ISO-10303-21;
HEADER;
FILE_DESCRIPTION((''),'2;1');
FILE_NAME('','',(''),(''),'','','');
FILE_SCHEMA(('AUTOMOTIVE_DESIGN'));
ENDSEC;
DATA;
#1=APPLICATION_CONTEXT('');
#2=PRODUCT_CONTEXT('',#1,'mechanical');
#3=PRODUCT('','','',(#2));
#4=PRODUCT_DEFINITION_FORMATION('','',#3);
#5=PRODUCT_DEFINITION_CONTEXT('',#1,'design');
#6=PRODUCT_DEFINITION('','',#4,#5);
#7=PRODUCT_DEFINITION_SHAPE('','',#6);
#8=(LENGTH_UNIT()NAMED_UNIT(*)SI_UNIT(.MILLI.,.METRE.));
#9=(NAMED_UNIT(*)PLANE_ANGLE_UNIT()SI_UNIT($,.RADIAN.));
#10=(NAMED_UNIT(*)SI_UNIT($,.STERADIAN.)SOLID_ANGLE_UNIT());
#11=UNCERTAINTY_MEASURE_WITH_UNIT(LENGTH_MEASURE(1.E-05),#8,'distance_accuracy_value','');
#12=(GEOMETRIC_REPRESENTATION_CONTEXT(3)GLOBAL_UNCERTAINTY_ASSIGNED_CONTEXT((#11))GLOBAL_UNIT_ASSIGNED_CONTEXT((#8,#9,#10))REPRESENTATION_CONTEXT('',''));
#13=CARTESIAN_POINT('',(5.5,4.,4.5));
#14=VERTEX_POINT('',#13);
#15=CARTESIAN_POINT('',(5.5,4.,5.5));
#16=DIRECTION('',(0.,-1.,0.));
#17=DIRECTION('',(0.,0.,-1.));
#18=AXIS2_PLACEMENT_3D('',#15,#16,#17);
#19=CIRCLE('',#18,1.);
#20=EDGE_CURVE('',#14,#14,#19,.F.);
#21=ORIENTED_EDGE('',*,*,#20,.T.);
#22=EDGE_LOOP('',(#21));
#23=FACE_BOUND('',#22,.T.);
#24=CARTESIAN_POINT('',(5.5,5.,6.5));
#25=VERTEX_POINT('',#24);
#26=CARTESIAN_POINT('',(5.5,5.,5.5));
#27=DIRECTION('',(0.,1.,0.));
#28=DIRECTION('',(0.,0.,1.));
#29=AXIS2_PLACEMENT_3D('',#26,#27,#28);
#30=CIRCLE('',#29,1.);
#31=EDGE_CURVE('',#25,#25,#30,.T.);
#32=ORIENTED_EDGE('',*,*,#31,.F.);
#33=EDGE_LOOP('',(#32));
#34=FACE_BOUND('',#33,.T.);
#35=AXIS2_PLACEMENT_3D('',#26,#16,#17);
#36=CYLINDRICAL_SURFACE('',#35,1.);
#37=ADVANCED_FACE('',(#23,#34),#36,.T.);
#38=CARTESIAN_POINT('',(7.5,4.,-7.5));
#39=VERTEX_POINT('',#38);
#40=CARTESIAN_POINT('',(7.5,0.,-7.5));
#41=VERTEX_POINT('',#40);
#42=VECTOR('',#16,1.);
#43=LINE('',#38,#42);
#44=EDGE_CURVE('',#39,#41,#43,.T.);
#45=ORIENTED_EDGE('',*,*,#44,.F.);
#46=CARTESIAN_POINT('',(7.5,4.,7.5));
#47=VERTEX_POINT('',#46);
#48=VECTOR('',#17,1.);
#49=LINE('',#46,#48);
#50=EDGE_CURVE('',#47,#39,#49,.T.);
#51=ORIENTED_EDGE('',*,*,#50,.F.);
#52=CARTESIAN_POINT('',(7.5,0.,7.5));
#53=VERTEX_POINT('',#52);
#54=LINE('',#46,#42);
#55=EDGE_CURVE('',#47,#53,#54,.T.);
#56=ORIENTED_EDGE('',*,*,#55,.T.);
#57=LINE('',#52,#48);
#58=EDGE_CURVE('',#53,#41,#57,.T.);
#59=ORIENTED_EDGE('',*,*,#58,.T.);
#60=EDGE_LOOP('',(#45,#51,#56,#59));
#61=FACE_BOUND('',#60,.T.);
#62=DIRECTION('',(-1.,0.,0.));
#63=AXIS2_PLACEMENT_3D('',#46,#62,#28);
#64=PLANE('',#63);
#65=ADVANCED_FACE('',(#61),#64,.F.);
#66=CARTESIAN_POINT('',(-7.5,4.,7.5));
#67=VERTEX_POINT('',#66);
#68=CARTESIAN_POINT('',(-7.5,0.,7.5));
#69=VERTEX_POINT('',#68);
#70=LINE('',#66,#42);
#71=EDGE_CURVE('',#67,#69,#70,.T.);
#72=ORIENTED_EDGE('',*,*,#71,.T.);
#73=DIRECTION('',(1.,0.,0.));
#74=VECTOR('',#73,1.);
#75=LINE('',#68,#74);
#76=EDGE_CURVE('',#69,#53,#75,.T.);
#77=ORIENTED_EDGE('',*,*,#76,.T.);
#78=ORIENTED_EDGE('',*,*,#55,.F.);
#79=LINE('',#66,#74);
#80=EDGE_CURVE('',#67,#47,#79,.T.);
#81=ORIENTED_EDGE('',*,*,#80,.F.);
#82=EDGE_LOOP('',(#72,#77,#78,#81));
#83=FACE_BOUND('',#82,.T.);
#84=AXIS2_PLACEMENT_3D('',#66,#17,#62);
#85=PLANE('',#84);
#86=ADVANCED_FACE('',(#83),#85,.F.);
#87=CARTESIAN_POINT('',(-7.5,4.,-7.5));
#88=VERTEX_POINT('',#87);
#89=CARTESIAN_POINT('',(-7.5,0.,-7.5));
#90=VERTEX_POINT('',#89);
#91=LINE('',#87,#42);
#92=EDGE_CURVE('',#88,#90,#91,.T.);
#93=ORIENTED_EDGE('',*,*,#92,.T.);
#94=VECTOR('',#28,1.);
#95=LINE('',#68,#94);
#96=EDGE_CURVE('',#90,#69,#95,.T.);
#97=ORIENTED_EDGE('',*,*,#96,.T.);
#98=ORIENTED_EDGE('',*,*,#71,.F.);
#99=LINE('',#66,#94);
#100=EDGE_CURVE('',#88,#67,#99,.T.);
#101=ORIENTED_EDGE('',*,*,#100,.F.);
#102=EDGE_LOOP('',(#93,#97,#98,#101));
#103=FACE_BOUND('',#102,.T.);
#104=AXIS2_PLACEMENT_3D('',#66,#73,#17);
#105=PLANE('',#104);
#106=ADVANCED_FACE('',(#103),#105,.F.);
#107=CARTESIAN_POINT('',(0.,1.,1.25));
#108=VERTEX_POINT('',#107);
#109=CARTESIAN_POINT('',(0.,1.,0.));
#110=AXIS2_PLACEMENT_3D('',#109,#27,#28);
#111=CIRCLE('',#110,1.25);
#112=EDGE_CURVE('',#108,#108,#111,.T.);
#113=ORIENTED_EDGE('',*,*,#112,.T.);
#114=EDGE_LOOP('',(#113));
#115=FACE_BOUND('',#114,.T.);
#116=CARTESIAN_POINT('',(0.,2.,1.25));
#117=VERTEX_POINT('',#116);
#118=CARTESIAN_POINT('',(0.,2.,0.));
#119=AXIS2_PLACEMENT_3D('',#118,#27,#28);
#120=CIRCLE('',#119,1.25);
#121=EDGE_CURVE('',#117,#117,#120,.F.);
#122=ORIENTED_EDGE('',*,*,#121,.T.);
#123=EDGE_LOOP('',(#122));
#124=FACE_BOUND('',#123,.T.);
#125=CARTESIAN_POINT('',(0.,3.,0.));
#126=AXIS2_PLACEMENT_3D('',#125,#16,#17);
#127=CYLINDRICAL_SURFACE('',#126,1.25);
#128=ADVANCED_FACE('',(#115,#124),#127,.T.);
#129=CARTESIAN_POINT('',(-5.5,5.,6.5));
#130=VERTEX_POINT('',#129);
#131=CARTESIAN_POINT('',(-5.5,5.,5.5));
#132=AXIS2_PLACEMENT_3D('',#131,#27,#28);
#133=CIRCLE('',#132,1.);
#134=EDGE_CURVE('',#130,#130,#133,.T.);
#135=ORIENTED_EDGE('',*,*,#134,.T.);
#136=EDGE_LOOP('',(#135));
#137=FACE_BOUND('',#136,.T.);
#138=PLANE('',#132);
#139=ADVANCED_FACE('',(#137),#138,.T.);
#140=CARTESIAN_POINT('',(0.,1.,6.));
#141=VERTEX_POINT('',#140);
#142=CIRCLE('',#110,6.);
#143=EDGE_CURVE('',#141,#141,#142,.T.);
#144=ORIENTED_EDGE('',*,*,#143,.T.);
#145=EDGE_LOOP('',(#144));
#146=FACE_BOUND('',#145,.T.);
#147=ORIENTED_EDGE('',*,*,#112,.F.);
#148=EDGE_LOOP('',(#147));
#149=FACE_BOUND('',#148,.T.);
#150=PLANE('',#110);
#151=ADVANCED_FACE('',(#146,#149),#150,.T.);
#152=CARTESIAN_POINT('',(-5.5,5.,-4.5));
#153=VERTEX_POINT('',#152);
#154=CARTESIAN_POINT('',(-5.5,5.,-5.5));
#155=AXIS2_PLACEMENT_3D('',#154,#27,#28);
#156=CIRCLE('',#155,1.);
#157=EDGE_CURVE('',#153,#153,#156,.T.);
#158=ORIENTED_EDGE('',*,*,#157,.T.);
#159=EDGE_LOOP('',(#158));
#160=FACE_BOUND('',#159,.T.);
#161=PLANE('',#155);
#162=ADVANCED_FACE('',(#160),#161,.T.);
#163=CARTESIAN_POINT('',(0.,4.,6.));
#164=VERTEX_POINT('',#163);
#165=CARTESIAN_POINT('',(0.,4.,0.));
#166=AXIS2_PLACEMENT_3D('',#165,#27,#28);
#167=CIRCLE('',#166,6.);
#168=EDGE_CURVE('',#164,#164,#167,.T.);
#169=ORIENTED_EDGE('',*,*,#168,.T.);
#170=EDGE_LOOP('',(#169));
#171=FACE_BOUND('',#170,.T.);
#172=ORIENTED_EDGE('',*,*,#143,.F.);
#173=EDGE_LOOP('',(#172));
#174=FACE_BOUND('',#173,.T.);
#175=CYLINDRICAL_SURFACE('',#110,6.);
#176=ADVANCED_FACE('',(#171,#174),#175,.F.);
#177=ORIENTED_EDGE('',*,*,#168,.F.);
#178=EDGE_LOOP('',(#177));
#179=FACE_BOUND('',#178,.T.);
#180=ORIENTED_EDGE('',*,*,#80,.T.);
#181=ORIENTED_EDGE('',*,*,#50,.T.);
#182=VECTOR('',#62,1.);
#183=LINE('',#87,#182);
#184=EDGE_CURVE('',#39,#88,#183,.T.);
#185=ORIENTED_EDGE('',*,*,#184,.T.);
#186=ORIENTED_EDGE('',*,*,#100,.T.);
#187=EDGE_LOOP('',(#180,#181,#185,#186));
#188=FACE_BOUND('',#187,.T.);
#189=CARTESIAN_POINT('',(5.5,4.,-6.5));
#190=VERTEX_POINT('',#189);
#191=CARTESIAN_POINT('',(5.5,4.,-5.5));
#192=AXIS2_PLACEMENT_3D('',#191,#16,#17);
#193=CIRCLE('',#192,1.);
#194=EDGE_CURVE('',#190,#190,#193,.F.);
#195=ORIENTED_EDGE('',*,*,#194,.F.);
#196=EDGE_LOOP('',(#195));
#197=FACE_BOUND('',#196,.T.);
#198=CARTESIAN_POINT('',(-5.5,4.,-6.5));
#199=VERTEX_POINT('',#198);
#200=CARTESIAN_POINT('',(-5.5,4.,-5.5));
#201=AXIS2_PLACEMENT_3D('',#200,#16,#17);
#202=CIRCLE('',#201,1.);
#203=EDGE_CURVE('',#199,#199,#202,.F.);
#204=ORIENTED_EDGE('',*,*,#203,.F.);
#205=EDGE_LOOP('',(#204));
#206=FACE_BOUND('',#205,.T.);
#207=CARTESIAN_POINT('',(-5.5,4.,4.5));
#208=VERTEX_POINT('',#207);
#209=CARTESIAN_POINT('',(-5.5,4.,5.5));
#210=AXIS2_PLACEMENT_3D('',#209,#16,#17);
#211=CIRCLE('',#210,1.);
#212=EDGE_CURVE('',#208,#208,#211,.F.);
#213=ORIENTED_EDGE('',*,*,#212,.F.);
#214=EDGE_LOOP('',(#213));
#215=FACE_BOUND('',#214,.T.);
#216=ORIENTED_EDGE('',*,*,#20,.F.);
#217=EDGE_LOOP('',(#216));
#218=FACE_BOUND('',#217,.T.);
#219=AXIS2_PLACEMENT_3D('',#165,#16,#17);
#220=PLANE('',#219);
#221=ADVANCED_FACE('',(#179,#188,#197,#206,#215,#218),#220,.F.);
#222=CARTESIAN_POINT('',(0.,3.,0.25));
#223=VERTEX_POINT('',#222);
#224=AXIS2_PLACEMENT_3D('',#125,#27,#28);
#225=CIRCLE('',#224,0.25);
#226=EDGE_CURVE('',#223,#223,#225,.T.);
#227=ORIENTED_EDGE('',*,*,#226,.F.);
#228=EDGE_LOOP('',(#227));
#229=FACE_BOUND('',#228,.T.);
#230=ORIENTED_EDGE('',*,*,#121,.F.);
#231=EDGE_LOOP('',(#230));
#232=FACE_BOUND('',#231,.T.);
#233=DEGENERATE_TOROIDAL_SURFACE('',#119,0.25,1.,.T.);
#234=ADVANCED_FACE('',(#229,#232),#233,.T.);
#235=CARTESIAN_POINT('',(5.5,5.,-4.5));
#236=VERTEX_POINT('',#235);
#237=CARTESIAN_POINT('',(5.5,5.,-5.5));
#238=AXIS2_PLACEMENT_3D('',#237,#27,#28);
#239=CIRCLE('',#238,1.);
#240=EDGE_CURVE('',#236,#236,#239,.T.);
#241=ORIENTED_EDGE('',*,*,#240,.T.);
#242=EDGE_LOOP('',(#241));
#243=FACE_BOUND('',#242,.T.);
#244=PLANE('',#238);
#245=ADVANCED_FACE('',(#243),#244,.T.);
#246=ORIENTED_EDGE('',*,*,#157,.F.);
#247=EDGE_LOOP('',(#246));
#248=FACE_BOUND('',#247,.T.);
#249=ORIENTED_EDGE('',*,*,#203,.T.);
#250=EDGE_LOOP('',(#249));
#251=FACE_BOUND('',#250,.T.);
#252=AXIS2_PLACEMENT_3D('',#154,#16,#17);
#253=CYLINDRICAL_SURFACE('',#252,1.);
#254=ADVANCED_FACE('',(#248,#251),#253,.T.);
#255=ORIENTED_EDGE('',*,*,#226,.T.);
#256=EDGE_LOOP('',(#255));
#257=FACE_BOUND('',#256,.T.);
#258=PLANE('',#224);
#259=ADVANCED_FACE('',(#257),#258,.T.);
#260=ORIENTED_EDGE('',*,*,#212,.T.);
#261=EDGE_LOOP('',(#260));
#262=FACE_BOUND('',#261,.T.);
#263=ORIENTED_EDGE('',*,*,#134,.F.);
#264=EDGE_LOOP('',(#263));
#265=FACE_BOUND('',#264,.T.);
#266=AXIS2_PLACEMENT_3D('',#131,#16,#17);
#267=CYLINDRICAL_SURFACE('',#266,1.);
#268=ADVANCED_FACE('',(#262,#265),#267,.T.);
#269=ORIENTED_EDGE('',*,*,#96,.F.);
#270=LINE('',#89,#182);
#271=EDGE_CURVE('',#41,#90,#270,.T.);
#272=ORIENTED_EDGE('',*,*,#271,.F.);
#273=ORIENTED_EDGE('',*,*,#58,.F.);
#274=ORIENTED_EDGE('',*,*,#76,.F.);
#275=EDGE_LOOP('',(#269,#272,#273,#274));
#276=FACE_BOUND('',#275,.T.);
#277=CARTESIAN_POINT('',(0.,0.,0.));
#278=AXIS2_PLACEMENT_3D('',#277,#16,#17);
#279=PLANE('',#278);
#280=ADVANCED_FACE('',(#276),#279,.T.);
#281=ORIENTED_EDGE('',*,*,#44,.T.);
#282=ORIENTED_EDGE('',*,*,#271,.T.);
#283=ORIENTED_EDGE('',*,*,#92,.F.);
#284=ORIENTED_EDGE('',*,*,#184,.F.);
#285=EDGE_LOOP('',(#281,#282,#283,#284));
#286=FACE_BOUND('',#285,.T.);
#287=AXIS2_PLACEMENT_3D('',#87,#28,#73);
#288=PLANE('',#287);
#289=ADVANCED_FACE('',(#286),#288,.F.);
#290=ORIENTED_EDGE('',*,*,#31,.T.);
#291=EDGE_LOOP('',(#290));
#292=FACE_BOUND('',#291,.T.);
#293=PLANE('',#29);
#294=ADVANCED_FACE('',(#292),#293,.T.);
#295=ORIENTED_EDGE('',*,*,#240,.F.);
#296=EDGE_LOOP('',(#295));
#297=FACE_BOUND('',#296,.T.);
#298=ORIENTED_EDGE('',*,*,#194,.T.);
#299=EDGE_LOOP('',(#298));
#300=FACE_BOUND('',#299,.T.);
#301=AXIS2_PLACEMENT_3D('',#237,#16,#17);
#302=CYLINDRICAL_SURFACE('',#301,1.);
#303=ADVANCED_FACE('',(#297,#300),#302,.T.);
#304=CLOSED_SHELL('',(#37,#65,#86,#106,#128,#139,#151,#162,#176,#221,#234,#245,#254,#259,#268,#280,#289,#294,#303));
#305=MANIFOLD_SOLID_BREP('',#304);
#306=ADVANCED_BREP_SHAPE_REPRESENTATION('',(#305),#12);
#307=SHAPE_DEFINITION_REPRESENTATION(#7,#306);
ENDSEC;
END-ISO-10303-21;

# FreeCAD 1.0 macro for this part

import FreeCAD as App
import Part
import Sketcher
Q = App.Units.Quantity


def edges_at(feature, points):
    """Names of the edges that pass closest to the given points."""
    edges = feature.Shape.Edges
    near = lambda p: min(range(len(edges)), key=lambda i: edges[i].distToShape(Part.Vertex(*p))[0])
    return sorted({f"Edge{near(p) + 1}" for p in points})

doc = App.newDocument("Part")
params = doc.addObject("Spreadsheet::Sheet", "Params")
for row, (alias, value) in enumerate([
    ("sketch1_width", "15 mm"),
    ("pad1_length", "4 mm"),
    ("sketch2_diameter", "12 mm"),
    ("pocket1_length", "3 mm"),
    ("sketch3_diameter", "2.5 mm"),
    ("pad2_length", "2 mm"),
    ("fillet_radius", "1 mm"),
    ("sketch4_diameter", "2 mm"),
    ("pad3_length", "1 mm"),
], start=1):
    params.set(f"A{row}", alias)
    params.set(f"B{row}", "=" + value)
    params.setAlias(f"B{row}", alias)

body = doc.addObject("PartDesign::Body", "Body")

sketch1 = body.newObject("Sketcher::SketchObject", "Sketch")
sketch1.AttachmentSupport = (doc.getObject("XZ_Plane"), [""])
sketch1.MapMode = "FlatFace"
sketch1.addGeometry(Part.LineSegment(App.Vector(-8, -8, 0), App.Vector(-8, 8, 0)), False)
sketch1.addGeometry(Part.LineSegment(App.Vector(-8, 8, 0), App.Vector(8, 8, 0)), False)
sketch1.addGeometry(Part.LineSegment(App.Vector(8, 8, 0), App.Vector(8, -8, 0)), False)
sketch1.addGeometry(Part.LineSegment(App.Vector(8, -8, 0), App.Vector(-8, -8, 0)), False)
sketch1.addConstraint(Sketcher.Constraint("Coincident", 0, 2, 1, 1))
sketch1.addConstraint(Sketcher.Constraint("Coincident", 1, 2, 2, 1))
sketch1.addConstraint(Sketcher.Constraint("Coincident", 2, 2, 3, 1))
sketch1.addConstraint(Sketcher.Constraint("Coincident", 3, 2, 0, 1))
sketch1.addConstraint(Sketcher.Constraint("Vertical", 0))
sketch1.addConstraint(Sketcher.Constraint("Horizontal", 1))
sketch1.addConstraint(Sketcher.Constraint("Vertical", 2))
sketch1.addConstraint(Sketcher.Constraint("Horizontal", 3))
sketch1.addConstraint(Sketcher.Constraint("Symmetric", 0, 2, 2, 2, -1, 1))
sketch1.addConstraint(Sketcher.Constraint("Equal", 3, 0))
sketch1.addConstraint(Sketcher.Constraint("DistanceX", 1, 1, 1, 2, Q("15 mm")))
sketch1.setExpression("Constraints[10]", "Params.sketch1_width")
pad1 = body.newObject("PartDesign::Pad", "Pad")
pad1.Profile = sketch1
pad1.setExpression("Length", "Params.pad1_length")
pad1.Reversed = True

sketch2 = body.newObject("Sketcher::SketchObject", "Sketch001")
sketch2.AttachmentSupport = (doc.getObject("XZ_Plane"), [""])
sketch2.MapMode = "FlatFace"
sketch2.AttachmentOffset = App.Placement(App.Vector(0, 0, -4), App.Rotation())
sketch2.addGeometry(Part.Circle(App.Vector(0, 0, 0), App.Vector(0, 0, 1), 6), False)
sketch2.addConstraint(Sketcher.Constraint("Coincident", 0, 3, -1, 1))
sketch2.addConstraint(Sketcher.Constraint("Diameter", 0, Q("12 mm")))
sketch2.setExpression("Constraints[1]", "Params.sketch2_diameter")
pocket1 = body.newObject("PartDesign::Pocket", "Pocket")
pocket1.Profile = sketch2
pocket1.setExpression("Length", "Params.pocket1_length")
pocket1.Reversed = True

sketch3 = body.newObject("Sketcher::SketchObject", "Sketch002")
sketch3.AttachmentSupport = (doc.getObject("XZ_Plane"), [""])
sketch3.MapMode = "FlatFace"
sketch3.AttachmentOffset = App.Placement(App.Vector(0, 0, -1), App.Rotation())
sketch3.addGeometry(Part.Circle(App.Vector(0, 0, 0), App.Vector(0, 0, 1), 1.2), False)
sketch3.addConstraint(Sketcher.Constraint("Coincident", 0, 3, -1, 1))
sketch3.addConstraint(Sketcher.Constraint("Diameter", 0, Q("2.5 mm")))
sketch3.setExpression("Constraints[1]", "Params.sketch3_diameter")
pad2 = body.newObject("PartDesign::Pad", "Pad001")
pad2.Profile = sketch3
pad2.setExpression("Length", "Params.pad2_length")
pad2.Reversed = True
doc.recompute()

fillet = body.newObject("PartDesign::Fillet", "Fillet")
fillet.Base = (pad2, edges_at(pad2, [(-1.25, 3, 0)]))
fillet.setExpression("Radius", "Params.fillet_radius")

sketch4 = body.newObject("Sketcher::SketchObject", "Sketch003")
sketch4.AttachmentSupport = (doc.getObject("XZ_Plane"), [""])
sketch4.MapMode = "FlatFace"
sketch4.AttachmentOffset = App.Placement(App.Vector(0, 0, -4), App.Rotation())
sketch4.addGeometry(Part.Circle(App.Vector(-5.5, -5.5, 0), App.Vector(0, 0, 1), 1), False)
sketch4.addGeometry(Part.Circle(App.Vector(5.5, -5.5, 0), App.Vector(0, 0, 1), 1), False)
sketch4.addGeometry(Part.Circle(App.Vector(-5.5, 5.5, 0), App.Vector(0, 0, 1), 1), False)
sketch4.addGeometry(Part.Circle(App.Vector(5.5, 5.5, 0), App.Vector(0, 0, 1), 1), False)
sketch4.addConstraint(Sketcher.Constraint("Equal", 0, 1))
sketch4.addConstraint(Sketcher.Constraint("Equal", 1, 2))
sketch4.addConstraint(Sketcher.Constraint("Equal", 2, 3))
sketch4.addConstraint(Sketcher.Constraint("Symmetric", 1, 3, 2, 3, -1, 1))
sketch4.addConstraint(Sketcher.Constraint("Symmetric", 0, 3, 3, 3, -1, 1))
sketch4.addConstraint(Sketcher.Constraint("Symmetric", 0, 3, 1, 3, -2))
sketch4.addConstraint(Sketcher.Constraint("Diameter", 0, Q("2 mm")))
sketch4.addConstraint(Sketcher.Constraint("DistanceX", 0, 3, 1, 3, Q("11 mm")))
sketch4.addConstraint(Sketcher.Constraint("DistanceY", 0, 3, 2, 3, Q("11 mm")))
sketch4.setExpression("Constraints[6]", "Params.sketch4_diameter")
pad3 = body.newObject("PartDesign::Pad", "Pad002")
pad3.Profile = sketch4
pad3.setExpression("Length", "Params.pad3_length")
pad3.Reversed = True

doc.recompute()
